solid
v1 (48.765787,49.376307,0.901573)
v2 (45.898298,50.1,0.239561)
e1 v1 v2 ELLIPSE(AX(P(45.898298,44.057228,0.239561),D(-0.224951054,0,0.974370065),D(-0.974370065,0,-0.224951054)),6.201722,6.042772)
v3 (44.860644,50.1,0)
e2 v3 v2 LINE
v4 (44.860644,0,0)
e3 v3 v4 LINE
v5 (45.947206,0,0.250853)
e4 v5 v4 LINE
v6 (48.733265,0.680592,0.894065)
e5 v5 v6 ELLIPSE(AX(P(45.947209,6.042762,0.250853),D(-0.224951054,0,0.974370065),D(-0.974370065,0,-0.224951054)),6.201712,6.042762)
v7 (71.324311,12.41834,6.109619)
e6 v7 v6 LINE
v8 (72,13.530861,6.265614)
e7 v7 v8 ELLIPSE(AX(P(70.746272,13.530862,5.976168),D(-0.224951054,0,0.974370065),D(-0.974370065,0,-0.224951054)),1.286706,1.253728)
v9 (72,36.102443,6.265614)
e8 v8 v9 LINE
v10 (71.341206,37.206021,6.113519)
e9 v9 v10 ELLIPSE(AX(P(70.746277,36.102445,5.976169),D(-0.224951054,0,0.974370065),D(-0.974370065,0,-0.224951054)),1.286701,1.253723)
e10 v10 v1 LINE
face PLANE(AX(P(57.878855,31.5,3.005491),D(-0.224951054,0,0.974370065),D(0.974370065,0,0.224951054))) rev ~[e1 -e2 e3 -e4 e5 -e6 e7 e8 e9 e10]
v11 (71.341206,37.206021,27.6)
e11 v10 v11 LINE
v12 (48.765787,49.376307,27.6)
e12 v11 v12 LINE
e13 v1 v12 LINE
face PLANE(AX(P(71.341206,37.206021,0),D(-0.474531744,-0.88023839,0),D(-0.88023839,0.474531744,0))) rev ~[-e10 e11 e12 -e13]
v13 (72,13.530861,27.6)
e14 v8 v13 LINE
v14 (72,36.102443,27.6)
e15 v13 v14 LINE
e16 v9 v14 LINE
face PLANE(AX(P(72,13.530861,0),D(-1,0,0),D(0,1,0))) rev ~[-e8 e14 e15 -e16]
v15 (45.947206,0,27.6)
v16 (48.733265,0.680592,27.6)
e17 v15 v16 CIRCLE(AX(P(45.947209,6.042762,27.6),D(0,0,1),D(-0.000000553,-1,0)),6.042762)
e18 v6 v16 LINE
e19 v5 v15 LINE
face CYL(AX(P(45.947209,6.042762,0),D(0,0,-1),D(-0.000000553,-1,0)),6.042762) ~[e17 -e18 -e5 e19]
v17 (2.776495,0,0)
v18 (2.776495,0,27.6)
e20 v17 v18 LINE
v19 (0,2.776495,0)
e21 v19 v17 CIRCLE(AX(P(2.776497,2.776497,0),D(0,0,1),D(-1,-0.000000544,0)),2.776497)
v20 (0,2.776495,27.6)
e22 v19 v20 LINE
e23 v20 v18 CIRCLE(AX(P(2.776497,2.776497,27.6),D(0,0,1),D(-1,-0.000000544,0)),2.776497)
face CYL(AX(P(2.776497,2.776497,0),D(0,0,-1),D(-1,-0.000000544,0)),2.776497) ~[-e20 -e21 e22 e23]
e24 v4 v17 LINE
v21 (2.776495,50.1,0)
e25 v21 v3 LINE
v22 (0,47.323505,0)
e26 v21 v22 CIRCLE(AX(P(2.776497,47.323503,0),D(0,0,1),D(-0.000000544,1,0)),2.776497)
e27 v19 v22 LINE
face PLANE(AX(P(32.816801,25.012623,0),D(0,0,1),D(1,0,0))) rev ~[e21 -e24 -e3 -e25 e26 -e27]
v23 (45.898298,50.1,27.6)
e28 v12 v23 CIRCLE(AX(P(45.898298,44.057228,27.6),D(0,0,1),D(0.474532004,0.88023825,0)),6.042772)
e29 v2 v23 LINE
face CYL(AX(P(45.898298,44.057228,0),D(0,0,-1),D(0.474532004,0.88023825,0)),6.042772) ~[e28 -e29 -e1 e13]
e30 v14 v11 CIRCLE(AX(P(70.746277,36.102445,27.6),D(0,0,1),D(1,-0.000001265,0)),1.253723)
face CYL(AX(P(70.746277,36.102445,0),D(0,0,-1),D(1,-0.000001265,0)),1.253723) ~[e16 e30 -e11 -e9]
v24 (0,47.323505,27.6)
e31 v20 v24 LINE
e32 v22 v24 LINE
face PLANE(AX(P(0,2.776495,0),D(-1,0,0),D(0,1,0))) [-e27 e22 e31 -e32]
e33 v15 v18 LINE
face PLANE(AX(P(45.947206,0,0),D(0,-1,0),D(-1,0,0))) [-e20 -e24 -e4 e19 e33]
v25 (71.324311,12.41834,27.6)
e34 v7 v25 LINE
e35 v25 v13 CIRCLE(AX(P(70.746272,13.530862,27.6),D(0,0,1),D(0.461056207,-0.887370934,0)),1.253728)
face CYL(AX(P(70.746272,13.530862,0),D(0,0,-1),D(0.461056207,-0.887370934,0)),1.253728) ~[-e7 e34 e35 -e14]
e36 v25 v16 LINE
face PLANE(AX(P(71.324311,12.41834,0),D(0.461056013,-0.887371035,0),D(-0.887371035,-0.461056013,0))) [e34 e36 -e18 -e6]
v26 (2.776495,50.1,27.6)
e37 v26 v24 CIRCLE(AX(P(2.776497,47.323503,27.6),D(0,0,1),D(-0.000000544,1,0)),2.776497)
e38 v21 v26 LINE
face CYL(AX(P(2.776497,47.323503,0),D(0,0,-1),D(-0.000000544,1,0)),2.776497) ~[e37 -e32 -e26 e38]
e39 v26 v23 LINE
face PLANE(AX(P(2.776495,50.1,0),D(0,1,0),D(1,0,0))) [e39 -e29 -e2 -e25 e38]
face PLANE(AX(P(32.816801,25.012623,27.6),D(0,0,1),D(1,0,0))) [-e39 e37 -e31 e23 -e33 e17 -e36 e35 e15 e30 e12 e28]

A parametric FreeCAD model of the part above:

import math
import FreeCAD as App
import Part
import Sketcher
from FreeCAD import Vector
Q = App.Units.Quantity

doc = App.newDocument("Part")
body = doc.addObject("PartDesign::Body", "Body")

sketch1 = doc.addObject("Sketcher::SketchObject", "Sketch")
body.addObject(sketch1)
sketch1.AttachmentSupport = (doc.XY_Plane, [""])
sketch1.MapMode = "FlatFace"
sketch1.addGeometry([
    Part.LineSegment(Vector(0, 73, 0), Vector(0, 0, 0)),
    Part.LineSegment(Vector(0, 0, 0), Vector(29, 0, 0)),
    Part.LineSegment(Vector(29, 0, 0), Vector(29, 73, 0)),
    Part.LineSegment(Vector(29, 73, 0), Vector(0, 73, 0)),
], False)
sketch1.addConstraint([
    Sketcher.Constraint("Coincident", 0, 2, 1, 1),
    Sketcher.Constraint("Coincident", 1, 2, 2, 1),
    Sketcher.Constraint("Coincident", 2, 2, 3, 1),
    Sketcher.Constraint("Coincident", 3, 2, 0, 1),
    Sketcher.Constraint("Vertical", 0),
    Sketcher.Constraint("Horizontal", 1),
    Sketcher.Constraint("Vertical", 2),
    Sketcher.Constraint("Horizontal", 3),
    Sketcher.Constraint("Coincident", 0, 2, -1, 1),
    Sketcher.Constraint("DistanceX", 1, 1, 1, 2, Q("29 mm")),
    Sketcher.Constraint("DistanceY", 0, 2, 0, 1, Q("73 mm")),
])
pad1 = doc.addObject("PartDesign::Pad", "Pad")
body.addObject(pad1)
pad1.Profile = sketch1
pad1.Length = 10
body2 = doc.addObject("PartDesign::Body", "Body001")
doc.recompute()

body.Placement = App.Placement(Vector(46, -5, -10), App.Rotation(Vector(0, -1, 0), 13))
boolean = doc.addObject("PartDesign::Boolean", "Boolean")
body2.addObject(boolean)
boolean.Type = "Fuse"
boolean.addObjects([body])
body3 = doc.addObject("PartDesign::Body", "Body002")

sketch2 = doc.addObject("Sketcher::SketchObject", "Sketch001")
body3.addObject(sketch2)
sketch2.AttachmentSupport = (doc.getObject("XY_Plane002"), [""])
sketch2.MapMode = "FlatFace"
sketch2.addGeometry([
    Part.ArcOfCircle(Part.Circle(Vector(2.776497, 47.323503, 0), Vector(0, 0, 1), 2.776497), math.radians(90.000031), math.radians(179.999969)),
    Part.LineSegment(Vector(0, 47.323505, 0), Vector(0, 2.776495, 0)),
    Part.ArcOfCircle(Part.Circle(Vector(2.776497, 2.776497, 0), Vector(0, 0, 1), 2.776497), math.radians(-179.999969), math.radians(-90.000031)),
    Part.LineSegment(Vector(2.776495, 0, 0), Vector(45.947206, 0, 0)),
    Part.ArcOfCircle(Part.Circle(Vector(45.947209, 6.042762, 0), Vector(0, 0, 1), 6.042762), math.radians(-90.000032), math.radians(-62.54469)),
    Part.LineSegment(Vector(48.733265, 0.680592, 0), Vector(71.324311, 12.41834, 0)),
    Part.ArcOfCircle(Part.Circle(Vector(70.746272, 13.530862, 0), Vector(0, 0, 1), 1.253728), math.radians(-62.544716), math.radians(-0.000042)),
    Part.LineSegment(Vector(72, 13.530861, 0), Vector(72, 36.102443, 0)),
    Part.ArcOfCircle(Part.Circle(Vector(70.746277, 36.102445, 0), Vector(0, 0, 1), 1.253723), math.radians(-0.000072), math.radians(61.671255)),
    Part.LineSegment(Vector(71.341206, 37.206021, 0), Vector(48.765787, 49.376307, 0)),
    Part.ArcOfCircle(Part.Circle(Vector(45.898298, 44.057228, 0), Vector(0, 0, 1), 6.042772), math.radians(61.671117), math.radians(90.000001)),
    Part.LineSegment(Vector(45.898298, 50.1, 0), Vector(2.776495, 50.1, 0)),
], False)
sketch2.addConstraint([
    Sketcher.Constraint("Coincident", 0, 2, 1, 1),
    Sketcher.Constraint("Coincident", 1, 2, 2, 1),
    Sketcher.Constraint("Coincident", 2, 2, 3, 1),
    Sketcher.Constraint("Coincident", 3, 2, 4, 1),
    Sketcher.Constraint("Coincident", 4, 2, 5, 1),
    Sketcher.Constraint("Coincident", 5, 2, 6, 1),
    Sketcher.Constraint("Coincident", 6, 2, 7, 1),
    Sketcher.Constraint("Coincident", 7, 2, 8, 1),
    Sketcher.Constraint("Coincident", 8, 2, 9, 1),
    Sketcher.Constraint("Coincident", 9, 2, 10, 1),
    Sketcher.Constraint("Coincident", 10, 2, 11, 1),
    Sketcher.Constraint("Coincident", 11, 2, 0, 1),
    Sketcher.Constraint("Vertical", 1),
    Sketcher.Constraint("Horizontal", 3),
    Sketcher.Constraint("Vertical", 7),
    Sketcher.Constraint("Horizontal", 11),
    Sketcher.Constraint("PointOnObject", 0, 2, -2),
    Sketcher.Constraint("PointOnObject", 2, 2, -1),
    Sketcher.Constraint("DistanceX", -1, 1, 6, 2, Q("72 mm")),
    Sketcher.Constraint("DistanceY", -1, 1, 10, 2, Q("50.1 mm")),
    Sketcher.Constraint("Radius", 6, Q("1.253728 mm")),
    Sketcher.Constraint("Radius", 0, Q("2.776497 mm")),
    Sketcher.Constraint("Radius", 2, Q("2.776497 mm")),
    Sketcher.Constraint("Radius", 4, Q("6.042762 mm")),
    Sketcher.Constraint("Radius", 8, Q("1.253723 mm")),
    Sketcher.Constraint("Radius", 10, Q("6.042772 mm")),
    Sketcher.Constraint("Distance", 5, Q("25.458399 mm")),
    Sketcher.Constraint("DistanceX", 3, 1, 3, 2, Q("43.170711 mm")),
    Sketcher.Constraint("DistanceY", 1, 2, 1, 1, Q("44.54701 mm")),
    Sketcher.Constraint("DistanceY", 7, 1, 7, 2, Q("22.571582 mm")),
    Sketcher.Constraint("DistanceX", -1, 1, 10, 3, Q("45.898298 mm")),
    Sketcher.Constraint("DistanceY", 4, 3, 6, 3, Q("7.488099 mm")),
    Sketcher.Constraint("DistanceX", 4, 3, 5, 2, Q("25.377102 mm")),
    Sketcher.Constraint("DistanceY", 4, 3, 6, 2, Q("7.488099 mm")),
    Sketcher.Constraint("DistanceX", 11, 2, 11, 1, Q("43.121803 mm")),
    Sketcher.Constraint("DistanceX", -1, 1, 4, 3, Q("45.947209 mm")),
    Sketcher.Constraint("DistanceY", -1, 1, 8, 2, Q("37.206021 mm")),
    Sketcher.Constraint("DistanceY", 8, 3, 0, 3, Q("11.221059 mm")),
    Sketcher.Constraint("DistanceY", 2, 3, 0, 2, Q("44.547008 mm")),
    Sketcher.Constraint("DistanceX", 2, 3, 3, 2, Q("43.170709 mm")),
    Sketcher.Constraint("DistanceX", 10, 3, 9, 2, Q("2.867489 mm")),
    Sketcher.Constraint("DistanceX", 10, 2, 9, 2, Q("2.867489 mm")),
])
pad2 = doc.addObject("PartDesign::Pad", "Pad001")
body3.addObject(pad2)
pad2.Profile = sketch2
pad2.Length = 27.6
doc.recompute()

boolean2 = doc.addObject("PartDesign::Boolean", "Boolean001")
body3.addObject(boolean2)
boolean2.Type = "Cut"
boolean2.addObjects([body2])

doc.recompute()
